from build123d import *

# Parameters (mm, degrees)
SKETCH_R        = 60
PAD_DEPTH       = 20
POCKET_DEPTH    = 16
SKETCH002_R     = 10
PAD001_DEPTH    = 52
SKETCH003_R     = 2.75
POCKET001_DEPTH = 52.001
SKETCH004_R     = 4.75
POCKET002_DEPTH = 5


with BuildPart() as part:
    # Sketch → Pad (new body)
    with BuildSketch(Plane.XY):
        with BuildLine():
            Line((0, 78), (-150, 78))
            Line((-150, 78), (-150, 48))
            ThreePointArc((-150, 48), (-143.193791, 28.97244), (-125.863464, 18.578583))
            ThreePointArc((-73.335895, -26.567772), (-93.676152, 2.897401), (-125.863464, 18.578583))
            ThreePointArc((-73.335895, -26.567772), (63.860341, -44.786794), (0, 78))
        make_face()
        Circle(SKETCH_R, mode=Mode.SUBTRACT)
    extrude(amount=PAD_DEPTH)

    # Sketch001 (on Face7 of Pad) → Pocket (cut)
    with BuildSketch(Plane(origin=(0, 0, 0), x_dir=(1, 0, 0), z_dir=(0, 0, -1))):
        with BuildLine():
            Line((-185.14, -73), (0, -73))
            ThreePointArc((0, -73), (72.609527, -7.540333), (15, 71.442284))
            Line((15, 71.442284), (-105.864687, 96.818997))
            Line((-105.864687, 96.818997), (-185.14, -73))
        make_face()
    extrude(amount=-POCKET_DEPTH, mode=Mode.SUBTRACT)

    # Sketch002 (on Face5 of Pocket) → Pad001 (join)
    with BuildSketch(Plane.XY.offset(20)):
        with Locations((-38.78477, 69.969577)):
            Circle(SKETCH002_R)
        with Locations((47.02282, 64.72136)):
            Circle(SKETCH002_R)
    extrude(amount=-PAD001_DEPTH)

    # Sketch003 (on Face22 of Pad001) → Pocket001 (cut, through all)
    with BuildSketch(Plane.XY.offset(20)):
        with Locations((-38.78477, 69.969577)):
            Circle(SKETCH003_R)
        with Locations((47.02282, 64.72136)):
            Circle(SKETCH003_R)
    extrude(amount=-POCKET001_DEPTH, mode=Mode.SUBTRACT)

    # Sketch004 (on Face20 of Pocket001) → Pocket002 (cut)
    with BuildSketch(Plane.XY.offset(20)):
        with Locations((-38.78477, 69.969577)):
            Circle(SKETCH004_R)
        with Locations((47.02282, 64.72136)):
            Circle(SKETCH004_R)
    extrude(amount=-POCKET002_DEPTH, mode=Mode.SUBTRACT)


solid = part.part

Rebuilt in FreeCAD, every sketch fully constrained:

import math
import FreeCAD as App
import Part
import Sketcher
from FreeCAD import Vector
Q = App.Units.Quantity

doc = App.newDocument("Part")
body = doc.addObject("PartDesign::Body", "Body")

# Sketch on XY plane
sketch1 = body.newObject("Sketcher::SketchObject", "Sketch")
sketch1.AttachmentSupport = (doc.getObject("XY_Plane"), [""])
sketch1.MapMode = "FlatFace"
sketch1.addGeometry([
    Part.LineSegment(Vector(0, 78, 0), Vector(-150, 78, 0)),  # 0
    Part.LineSegment(Vector(-150, 78, 0), Vector(-150, 48, 0)),  # 1
    Part.ArcOfCircle(Part.Circle(Vector(-120, 48, 0), Vector(0, 0, 1), 30), math.radians(-180), math.radians(-101)),  # 2
    Part.ArcOfCircle(Part.Circle(Vector(-140, -51, 0), Vector(0, 0, 1), 71), math.radians(20), math.radians(79)),  # 3
    Part.ArcOfCircle(Part.Circle(Vector(0, 0, 0), Vector(0, 0, 1), 78), math.radians(-160), math.radians(90)),  # 4
    Part.Circle(Vector(0, 0, 0), Vector(0, 0, 1), 60),  # 5
], False)
sketch1.addConstraint([
    Sketcher.Constraint("Coincident", 0, 2, 1, 1),
    Sketcher.Constraint("Tangent", 1, 2, 2, 1),
    Sketcher.Constraint("Tangent", 2, 2, 3, 2),
    Sketcher.Constraint("Tangent", 3, 1, 4, 1),
    Sketcher.Constraint("Tangent", 4, 2, 0, 1),
    Sketcher.Constraint("Horizontal", 0),
    Sketcher.Constraint("Vertical", 1),
    Sketcher.Constraint("Coincident", 4, 3, -1, 1),
    Sketcher.Constraint("Coincident", 5, 3, -1, 1),
    Sketcher.Constraint("Diameter", 5, Q("120 mm")),
    Sketcher.Constraint("Radius", 2, Q("30.000001 mm")),
    Sketcher.Constraint("Radius", 4, Q("78 mm")),
    Sketcher.Constraint("DistanceX", 0, 2, 0, 1, Q("150 mm")),
    Sketcher.Constraint("DistanceY", 1, 2, 1, 1, Q("30 mm")),
    Sketcher.Constraint("Radius", 3, Q("70.529999 mm")),
])
pad1 = body.newObject("PartDesign::Pad", "Pad")
pad1.Profile = sketch1
pad1.Length = 20

# Sketch on XY plane
sketch2 = body.newObject("Sketcher::SketchObject", "Sketch001")
sketch2.AttachmentSupport = (doc.getObject("XY_Plane"), [""])
sketch2.MapMode = "FlatFace"
sketch2.addGeometry([
    Part.LineSegment(Vector(-185, 73, 0), Vector(0, 73, 0)),
    Part.ArcOfCircle(Part.Circle(Vector(0, 0, 0), Vector(0, 0, 1), 73), math.radians(-78), math.radians(90)),
    Part.LineSegment(Vector(15, -71, 0), Vector(-106, -97, 0)),
    Part.LineSegment(Vector(-106, -97, 0), Vector(-185, 73, 0)),
], False)
sketch2.addConstraint([
    Sketcher.Constraint("Tangent", 0, 2, 1, 2),
    Sketcher.Constraint("Tangent", 1, 1, 2, 1),
    Sketcher.Constraint("Coincident", 2, 2, 3, 1),
    Sketcher.Constraint("Coincident", 3, 2, 0, 1),
    Sketcher.Constraint("Horizontal", 0),
    Sketcher.Constraint("Coincident", 1, 3, -1, 1),
    Sketcher.Constraint("Radius", 1, Q("73 mm")),
    Sketcher.Constraint("DistanceX", -1, 1, 1, 1, Q("15 mm")),
    Sketcher.Constraint("Distance", 2, Q("123.500001 mm")),
    Sketcher.Constraint("DistanceX", 0, 1, 0, 2, Q("185.14 mm")),
])
pocket1 = body.newObject("PartDesign::Pocket", "Pocket")
pocket1.Profile = sketch2
pocket1.Length = 16
pocket1.Reversed = True

# Sketch on XY plane
sketch3 = body.newObject("Sketcher::SketchObject", "Sketch002")
sketch3.AttachmentSupport = (doc.getObject("XY_Plane"), [""])
sketch3.MapMode = "FlatFace"
sketch3.AttachmentOffset = App.Placement(Vector(0, 0, 20), App.Rotation())
sketch3.addGeometry([
    Part.Circle(Vector(-39, 70, 0), Vector(0, 0, 1), 10),
    Part.Circle(Vector(47, 65, 0), Vector(0, 0, 1), 10),
], False)
sketch3.addConstraint([
    Sketcher.Constraint("Equal", 0, 1),
    Sketcher.Constraint("Diameter", 0, Q("20 mm")),
    Sketcher.Constraint("DistanceX", 0, 3, -1, 1, Q("38.78477 mm")),
    Sketcher.Constraint("DistanceX", -1, 1, 1, 3, Q("47.02282 mm")),
    Sketcher.Constraint("DistanceY", -1, 1, 1, 3, Q("64.72136 mm")),
    Sketcher.Constraint("DistanceY", -1, 1, 0, 3, Q("69.969577 mm")),
])
pad2 = body.newObject("PartDesign::Pad", "Pad001")
pad2.Profile = sketch3
pad2.Length = 52
pad2.Reversed = True

# Sketch on XY plane
sketch4 = body.newObject("Sketcher::SketchObject", "Sketch003")
sketch4.AttachmentSupport = (doc.getObject("XY_Plane"), [""])
sketch4.MapMode = "FlatFace"
sketch4.AttachmentOffset = App.Placement(Vector(0, 0, 20), App.Rotation())
sketch4.addGeometry([
    Part.Circle(Vector(-38.8, 70, 0), Vector(0, 0, 1), 2.8),
    Part.Circle(Vector(47, 64.7, 0), Vector(0, 0, 1), 2.8),
], False)
sketch4.addConstraint([
    Sketcher.Constraint("Equal", 0, 1),
    Sketcher.Constraint("Diameter", 0, Q("5.5 mm")),
    Sketcher.Constraint("DistanceX", 0, 3, -1, 1, Q("38.78477 mm")),
    Sketcher.Constraint("DistanceX", -1, 1, 1, 3, Q("47.02282 mm")),
    Sketcher.Constraint("DistanceY", -1, 1, 1, 3, Q("64.72136 mm")),
    Sketcher.Constraint("DistanceY", -1, 1, 0, 3, Q("69.969577 mm")),
])
pocket2 = body.newObject("PartDesign::Pocket", "Pocket001")
pocket2.Profile = sketch4
pocket2.Type = "ThroughAll"

# Sketch on XY plane
sketch5 = body.newObject("Sketcher::SketchObject", "Sketch004")
sketch5.AttachmentSupport = (doc.getObject("XY_Plane"), [""])
sketch5.MapMode = "FlatFace"
sketch5.AttachmentOffset = App.Placement(Vector(0, 0, 20), App.Rotation())
sketch5.addGeometry([
    Part.Circle(Vector(-38.8, 70, 0), Vector(0, 0, 1), 4.8),
    Part.Circle(Vector(47, 64.7, 0), Vector(0, 0, 1), 4.8),
], False)
sketch5.addConstraint([
    Sketcher.Constraint("Equal", 0, 1),
    Sketcher.Constraint("Diameter", 0, Q("9.5 mm")),
    Sketcher.Constraint("DistanceX", 0, 3, -1, 1, Q("38.78477 mm")),
    Sketcher.Constraint("DistanceX", -1, 1, 1, 3, Q("47.02282 mm")),
    Sketcher.Constraint("DistanceY", -1, 1, 1, 3, Q("64.72136 mm")),
    Sketcher.Constraint("DistanceY", -1, 1, 0, 3, Q("69.969577 mm")),
])
pocket3 = body.newObject("PartDesign::Pocket", "Pocket002")
pocket3.Profile = sketch5
pocket3.Length = 5

doc.recompute()
